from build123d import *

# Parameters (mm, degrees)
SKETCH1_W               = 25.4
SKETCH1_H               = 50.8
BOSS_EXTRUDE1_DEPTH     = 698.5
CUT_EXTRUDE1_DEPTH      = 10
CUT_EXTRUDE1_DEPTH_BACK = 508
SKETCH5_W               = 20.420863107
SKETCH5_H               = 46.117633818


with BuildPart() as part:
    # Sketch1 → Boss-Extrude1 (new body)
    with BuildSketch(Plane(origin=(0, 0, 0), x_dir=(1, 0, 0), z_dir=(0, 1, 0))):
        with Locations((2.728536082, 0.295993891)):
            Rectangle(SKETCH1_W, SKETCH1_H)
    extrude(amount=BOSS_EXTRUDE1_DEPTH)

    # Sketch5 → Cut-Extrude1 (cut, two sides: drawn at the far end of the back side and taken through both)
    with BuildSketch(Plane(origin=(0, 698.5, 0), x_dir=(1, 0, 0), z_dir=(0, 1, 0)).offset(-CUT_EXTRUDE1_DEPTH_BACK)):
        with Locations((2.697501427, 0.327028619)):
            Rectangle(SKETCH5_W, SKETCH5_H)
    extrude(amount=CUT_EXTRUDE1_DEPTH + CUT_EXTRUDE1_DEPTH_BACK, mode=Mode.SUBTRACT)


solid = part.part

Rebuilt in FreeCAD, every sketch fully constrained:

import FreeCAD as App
import Part
import Sketcher
Q = App.Units.Quantity


def add_polygon(sketch, points):
    """Adds a closed chain of lines whose ends are joined by coincident constraints."""
    first, n = sketch.GeometryCount, len(points)
    for a, b in zip(points, points[1:] + points[:1]):
        sketch.addGeometry(Part.LineSegment(App.Vector(*a, 0), App.Vector(*b, 0)), False)
    for i in range(n):
        sketch.addConstraint(Sketcher.Constraint("Coincident", first + i, 2, first + (i + 1) % n, 1))

doc = App.newDocument("Part")
params = doc.addObject("Spreadsheet::Sheet", "Params")
for row, (alias, value) in enumerate([
    ("sketch1_width", "1 in"),
    ("sketch1_height", "2 in"),
    ("pad1_length", "27.5 in"),
    ("pocket1_length", "10 mm"),
    ("pocket1_length2", "20 in"),
], start=1):
    params.set(f"A{row}", alias)
    params.set(f"B{row}", "=" + value)
    params.setAlias(f"B{row}", alias)

body = doc.addObject("PartDesign::Body", "Body")

# Sketch on XZ plane
sketch1 = body.newObject("Sketcher::SketchObject", "Sketch")
sketch1.AttachmentSupport = (doc.getObject("XZ_Plane"), [""])
sketch1.MapMode = "FlatFace"
add_polygon(sketch1, [(-10, -26), (-10, 25), (15, 25), (15, -26)])  # lines 0-3
sketch1.addConstraint(Sketcher.Constraint("Vertical", 0))
sketch1.addConstraint(Sketcher.Constraint("Horizontal", 1))
sketch1.addConstraint(Sketcher.Constraint("Vertical", 2))
sketch1.addConstraint(Sketcher.Constraint("Horizontal", 3))
sketch1.addConstraint(Sketcher.Constraint("DistanceX", 1, 1, 1, 2, Q("1 in")))
sketch1.addConstraint(Sketcher.Constraint("DistanceY", 0, 1, 0, 2, Q("2 in")))
sketch1.addConstraint(Sketcher.Constraint("DistanceX", 0, 2, -1, 1, Q("9.971464 mm")))
sketch1.addConstraint(Sketcher.Constraint("DistanceY", -1, 1, 0, 2, Q("25.104006 mm")))
sketch1.setExpression("Constraints[8]", "Params.sketch1_width")
sketch1.setExpression("Constraints[9]", "Params.sketch1_height")
pad1 = body.newObject("PartDesign::Pad", "Pad")
pad1.Profile = sketch1
pad1.setExpression("Length", "Params.pad1_length")
pad1.Reversed = True

# Sketch on XZ plane
sketch2 = body.newObject("Sketcher::SketchObject", "Sketch001")
sketch2.AttachmentSupport = (doc.getObject("XZ_Plane"), [""])
sketch2.MapMode = "FlatFace"
sketch2.AttachmentOffset = App.Placement(App.Vector(0, 0, -27.5 * 25.4), App.Rotation())
add_polygon(sketch2, [(-8, -23), (-8, 23), (13, 23), (13, -23)])  # lines 0-3
sketch2.addConstraint(Sketcher.Constraint("Vertical", 0))
sketch2.addConstraint(Sketcher.Constraint("Horizontal", 1))
sketch2.addConstraint(Sketcher.Constraint("Vertical", 2))
sketch2.addConstraint(Sketcher.Constraint("Horizontal", 3))
sketch2.addConstraint(Sketcher.Constraint("DistanceX", 1, 1, 1, 2, Q("20.420863 mm")))
sketch2.addConstraint(Sketcher.Constraint("DistanceY", 0, 1, 0, 2, Q("46.117634 mm")))
sketch2.addConstraint(Sketcher.Constraint("DistanceX", 0, 2, -1, 1, Q("7.51293 mm")))
sketch2.addConstraint(Sketcher.Constraint("DistanceY", -1, 1, 0, 2, Q("22.731788 mm")))
pocket1 = body.newObject("PartDesign::Pocket", "Pocket")
pocket1.Profile = sketch2
pocket1.Type = "TwoLengths"
pocket1.setExpression("Length", "Params.pocket1_length")
pocket1.setExpression("Length2", "Params.pocket1_length2")

doc.recompute()
